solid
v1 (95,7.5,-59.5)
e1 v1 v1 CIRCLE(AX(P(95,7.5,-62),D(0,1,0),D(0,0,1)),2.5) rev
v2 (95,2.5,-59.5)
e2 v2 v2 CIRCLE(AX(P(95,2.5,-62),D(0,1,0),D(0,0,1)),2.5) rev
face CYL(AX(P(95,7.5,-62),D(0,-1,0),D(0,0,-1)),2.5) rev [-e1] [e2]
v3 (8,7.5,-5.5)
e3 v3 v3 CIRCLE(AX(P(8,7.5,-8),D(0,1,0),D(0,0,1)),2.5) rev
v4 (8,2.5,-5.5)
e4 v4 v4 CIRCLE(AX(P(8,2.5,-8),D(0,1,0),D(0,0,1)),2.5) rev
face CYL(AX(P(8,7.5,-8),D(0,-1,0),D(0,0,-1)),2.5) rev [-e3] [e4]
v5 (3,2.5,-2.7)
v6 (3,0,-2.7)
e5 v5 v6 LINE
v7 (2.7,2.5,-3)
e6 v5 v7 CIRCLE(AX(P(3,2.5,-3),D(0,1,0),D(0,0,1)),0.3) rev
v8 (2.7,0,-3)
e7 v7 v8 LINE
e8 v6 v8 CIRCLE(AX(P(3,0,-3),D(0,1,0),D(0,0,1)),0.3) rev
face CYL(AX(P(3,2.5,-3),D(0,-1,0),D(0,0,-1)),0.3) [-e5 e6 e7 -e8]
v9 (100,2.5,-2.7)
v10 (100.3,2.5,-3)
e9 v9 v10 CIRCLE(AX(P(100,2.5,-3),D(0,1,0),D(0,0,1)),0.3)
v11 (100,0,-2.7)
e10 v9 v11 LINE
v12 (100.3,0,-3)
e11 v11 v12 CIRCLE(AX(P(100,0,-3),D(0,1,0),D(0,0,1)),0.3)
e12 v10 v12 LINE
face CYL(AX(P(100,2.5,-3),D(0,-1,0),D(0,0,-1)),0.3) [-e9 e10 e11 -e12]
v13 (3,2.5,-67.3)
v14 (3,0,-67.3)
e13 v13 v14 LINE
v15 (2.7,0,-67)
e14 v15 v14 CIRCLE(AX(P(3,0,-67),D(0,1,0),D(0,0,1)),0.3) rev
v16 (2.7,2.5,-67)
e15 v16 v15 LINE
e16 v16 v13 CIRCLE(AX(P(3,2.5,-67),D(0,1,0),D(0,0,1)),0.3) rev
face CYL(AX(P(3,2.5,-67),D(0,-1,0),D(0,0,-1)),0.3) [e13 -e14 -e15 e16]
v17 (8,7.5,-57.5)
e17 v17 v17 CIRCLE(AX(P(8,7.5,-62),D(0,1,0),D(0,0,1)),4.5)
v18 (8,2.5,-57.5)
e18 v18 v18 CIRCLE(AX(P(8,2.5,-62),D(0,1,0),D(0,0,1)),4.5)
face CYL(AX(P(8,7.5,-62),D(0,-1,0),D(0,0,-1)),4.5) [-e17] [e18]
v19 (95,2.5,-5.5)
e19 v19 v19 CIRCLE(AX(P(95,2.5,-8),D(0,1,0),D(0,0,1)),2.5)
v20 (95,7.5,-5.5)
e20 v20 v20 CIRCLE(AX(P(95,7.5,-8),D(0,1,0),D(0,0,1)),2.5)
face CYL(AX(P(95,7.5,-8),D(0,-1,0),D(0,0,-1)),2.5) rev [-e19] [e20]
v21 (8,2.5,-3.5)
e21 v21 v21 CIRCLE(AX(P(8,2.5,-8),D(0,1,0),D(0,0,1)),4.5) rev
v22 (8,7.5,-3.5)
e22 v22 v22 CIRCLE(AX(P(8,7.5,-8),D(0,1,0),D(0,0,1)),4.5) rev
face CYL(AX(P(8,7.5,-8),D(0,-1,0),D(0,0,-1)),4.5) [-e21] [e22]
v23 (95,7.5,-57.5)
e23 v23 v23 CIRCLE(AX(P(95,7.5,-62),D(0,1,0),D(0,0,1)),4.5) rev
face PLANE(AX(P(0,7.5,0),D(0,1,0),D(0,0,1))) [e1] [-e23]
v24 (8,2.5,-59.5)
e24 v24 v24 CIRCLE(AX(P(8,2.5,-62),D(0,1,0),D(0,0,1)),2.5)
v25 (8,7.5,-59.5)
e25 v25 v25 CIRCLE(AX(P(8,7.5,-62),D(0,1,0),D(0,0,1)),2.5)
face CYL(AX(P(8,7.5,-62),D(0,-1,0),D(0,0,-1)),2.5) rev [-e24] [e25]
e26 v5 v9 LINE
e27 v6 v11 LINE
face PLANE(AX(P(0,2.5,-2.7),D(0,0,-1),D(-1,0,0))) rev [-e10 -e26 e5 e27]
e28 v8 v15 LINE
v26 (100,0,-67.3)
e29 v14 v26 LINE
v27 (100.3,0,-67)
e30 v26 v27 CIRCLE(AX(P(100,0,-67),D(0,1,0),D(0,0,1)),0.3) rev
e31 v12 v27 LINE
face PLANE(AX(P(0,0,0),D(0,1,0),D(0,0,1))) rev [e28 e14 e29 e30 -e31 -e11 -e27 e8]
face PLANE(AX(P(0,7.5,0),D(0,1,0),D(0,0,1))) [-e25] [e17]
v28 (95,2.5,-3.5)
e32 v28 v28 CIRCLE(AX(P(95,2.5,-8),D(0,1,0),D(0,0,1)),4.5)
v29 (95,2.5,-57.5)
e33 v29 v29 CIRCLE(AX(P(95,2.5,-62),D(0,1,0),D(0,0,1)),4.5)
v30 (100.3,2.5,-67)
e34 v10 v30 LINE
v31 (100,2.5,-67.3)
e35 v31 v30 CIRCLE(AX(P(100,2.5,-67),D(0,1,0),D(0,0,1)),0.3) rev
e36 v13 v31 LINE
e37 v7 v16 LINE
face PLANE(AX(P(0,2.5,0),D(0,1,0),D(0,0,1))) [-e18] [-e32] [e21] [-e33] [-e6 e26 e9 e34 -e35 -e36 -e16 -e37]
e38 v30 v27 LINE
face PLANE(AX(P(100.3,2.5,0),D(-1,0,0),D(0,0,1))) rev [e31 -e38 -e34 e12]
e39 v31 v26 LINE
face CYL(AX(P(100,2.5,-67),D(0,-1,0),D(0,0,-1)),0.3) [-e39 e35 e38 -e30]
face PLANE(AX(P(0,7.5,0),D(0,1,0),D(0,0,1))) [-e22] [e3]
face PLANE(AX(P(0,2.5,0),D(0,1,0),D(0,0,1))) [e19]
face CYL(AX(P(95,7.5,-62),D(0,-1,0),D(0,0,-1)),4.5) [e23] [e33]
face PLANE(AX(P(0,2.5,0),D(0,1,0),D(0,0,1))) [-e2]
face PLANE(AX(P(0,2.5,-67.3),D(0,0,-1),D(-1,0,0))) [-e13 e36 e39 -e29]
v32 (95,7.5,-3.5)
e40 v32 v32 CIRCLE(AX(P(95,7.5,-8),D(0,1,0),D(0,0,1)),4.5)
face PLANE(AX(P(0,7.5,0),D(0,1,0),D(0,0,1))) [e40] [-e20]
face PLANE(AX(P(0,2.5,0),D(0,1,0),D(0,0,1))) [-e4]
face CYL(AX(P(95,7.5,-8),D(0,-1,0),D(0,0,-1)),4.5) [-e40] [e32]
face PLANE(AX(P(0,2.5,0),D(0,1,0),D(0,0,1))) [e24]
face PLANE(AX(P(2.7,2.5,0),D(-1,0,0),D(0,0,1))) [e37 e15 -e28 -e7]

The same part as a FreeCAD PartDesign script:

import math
import FreeCAD as App
import Part
import Sketcher

V = App.Vector
Q = App.Units.Quantity

doc = App.newDocument("Part")
body = doc.addObject("PartDesign::Body", "Body")

sketch1 = body.newObject("Sketcher::SketchObject", "Sketch")
sketch1.AttachmentSupport = (doc.getObject("XZ_Plane"), [""])
sketch1.MapMode = "FlatFace"
sketch1.addGeometry(Part.Circle(V(95, -8, 0), V(0, 0, 1), 4.5), False)
sketch1.addGeometry(Part.Circle(V(95, -8, 0), V(0, 0, 1), 2.5), False)
sketch1.addConstraint(Sketcher.Constraint("Coincident", 1, 3, 0, 3))
sketch1.addConstraint(Sketcher.Constraint("Diameter", 0, Q("9 mm")))
sketch1.addConstraint(Sketcher.Constraint("Diameter", 1, Q("5 mm")))
sketch1.addConstraint(Sketcher.Constraint("DistanceX", -1, 1, 0, 3, Q("95 mm")))
sketch1.addConstraint(Sketcher.Constraint("DistanceY", 0, 3, -1, 1, Q("8 mm")))
pad1 = body.newObject("PartDesign::Pad", "Pad")
pad1.Profile = sketch1
pad1.Length = 7.5
pad1.Reversed = True
body2 = doc.addObject("PartDesign::Body", "Body001")

sketch2 = body2.newObject("Sketcher::SketchObject", "Sketch001")
sketch2.AttachmentSupport = (doc.getObject("XZ_Plane001"), [""])
sketch2.MapMode = "FlatFace"
sketch2.addGeometry(Part.Circle(V(95, -62, 0), V(0, 0, 1), 4.5), False)
sketch2.addGeometry(Part.Circle(V(95, -62, 0), V(0, 0, 1), 2.5), False)
sketch2.addConstraint(Sketcher.Constraint("Coincident", 1, 3, 0, 3))
sketch2.addConstraint(Sketcher.Constraint("Diameter", 0, Q("9 mm")))
sketch2.addConstraint(Sketcher.Constraint("Diameter", 1, Q("5 mm")))
sketch2.addConstraint(Sketcher.Constraint("DistanceX", -1, 1, 0, 3, Q("95 mm")))
sketch2.addConstraint(Sketcher.Constraint("DistanceY", 0, 3, -1, 1, Q("62 mm")))
pad2 = body2.newObject("PartDesign::Pad", "Pad001")
pad2.Profile = sketch2
pad2.Length = 7.5
pad2.Reversed = True
body3 = doc.addObject("PartDesign::Body", "Body002")

sketch3 = body3.newObject("Sketcher::SketchObject", "Sketch002")
sketch3.AttachmentSupport = (doc.getObject("XZ_Plane002"), [""])
sketch3.MapMode = "FlatFace"
sketch3.addGeometry(Part.Circle(V(8, -62, 0), V(0, 0, 1), 4.5), False)
sketch3.addGeometry(Part.Circle(V(8, -62, 0), V(0, 0, 1), 2.5), False)
sketch3.addConstraint(Sketcher.Constraint("Coincident", 1, 3, 0, 3))
sketch3.addConstraint(Sketcher.Constraint("Diameter", 0, Q("9 mm")))
sketch3.addConstraint(Sketcher.Constraint("Diameter", 1, Q("5 mm")))
sketch3.addConstraint(Sketcher.Constraint("DistanceX", -1, 1, 0, 3, Q("8 mm")))
sketch3.addConstraint(Sketcher.Constraint("DistanceY", 0, 3, -1, 1, Q("62 mm")))
pad3 = body3.newObject("PartDesign::Pad", "Pad002")
pad3.Profile = sketch3
pad3.Length = 7.5
pad3.Reversed = True
body4 = doc.addObject("PartDesign::Body", "Body003")

sketch4 = body4.newObject("Sketcher::SketchObject", "Sketch003")
sketch4.AttachmentSupport = (doc.getObject("XZ_Plane003"), [""])
sketch4.MapMode = "FlatFace"
sketch4.addGeometry(Part.Circle(V(8, -8, 0), V(0, 0, 1), 4.5), False)
sketch4.addGeometry(Part.Circle(V(8, -8, 0), V(0, 0, 1), 2.5), False)
sketch4.addConstraint(Sketcher.Constraint("Coincident", 1, 3, 0, 3))
sketch4.addConstraint(Sketcher.Constraint("Diameter", 0, Q("9 mm")))
sketch4.addConstraint(Sketcher.Constraint("Diameter", 1, Q("5 mm")))
sketch4.addConstraint(Sketcher.Constraint("DistanceX", -1, 1, 0, 3, Q("8 mm")))
sketch4.addConstraint(Sketcher.Constraint("DistanceY", 0, 3, -1, 1, Q("8 mm")))
pad4 = body4.newObject("PartDesign::Pad", "Pad003")
pad4.Profile = sketch4
pad4.Length = 7.5
pad4.Reversed = True
body.AllowCompound = True
doc.recompute()

boolean = body.newObject("PartDesign::Boolean", "Boolean")
boolean.Type = "Fuse"
boolean.addObjects([body2])
doc.recompute()

boolean2 = body.newObject("PartDesign::Boolean", "Boolean001")
boolean2.Type = "Fuse"
boolean2.addObjects([body3])
doc.recompute()

boolean3 = body.newObject("PartDesign::Boolean", "Boolean002")
boolean3.Type = "Fuse"
boolean3.addObjects([body4])

sketch5 = body.newObject("Sketcher::SketchObject", "Sketch004")
sketch5.AttachmentSupport = (doc.getObject("XZ_Plane"), [""])
sketch5.MapMode = "FlatFace"
sketch5.addGeometry(Part.LineSegment(V(3, -2.7, 0), V(100, -2.7, 0)), False)
sketch5.addGeometry(Part.ArcOfCircle(Part.Circle(V(100, -3, 0), V(0, 0, 1), 0.3), math.radians(0), math.radians(90)), False)
sketch5.addGeometry(Part.LineSegment(V(100.3, -3, 0), V(100.3, -67, 0)), False)
sketch5.addGeometry(Part.ArcOfCircle(Part.Circle(V(100, -67, 0), V(0, 0, 1), 0.3), math.radians(-90), math.radians(0)), False)
sketch5.addGeometry(Part.LineSegment(V(100, -67.3, 0), V(3, -67.3, 0)), False)
sketch5.addGeometry(Part.ArcOfCircle(Part.Circle(V(3, -67, 0), V(0, 0, 1), 0.3), math.radians(-180), math.radians(-90)), False)
sketch5.addGeometry(Part.LineSegment(V(2.7, -67, 0), V(2.7, -3, 0)), False)
sketch5.addGeometry(Part.ArcOfCircle(Part.Circle(V(3, -3, 0), V(0, 0, 1), 0.3), math.radians(90), math.radians(180)), False)
sketch5.addGeometry(Part.Circle(V(8, -8, 0), V(0, 0, 1), 4.5), False)
sketch5.addGeometry(Part.Circle(V(95, -8, 0), V(0, 0, 1), 4.5), False)
sketch5.addGeometry(Part.Circle(V(8, -62, 0), V(0, 0, 1), 4.5), False)
sketch5.addGeometry(Part.Circle(V(95, -62, 0), V(0, 0, 1), 4.5), False)
sketch5.addGeometry(Part.Circle(V(8, -8, 0), V(0, 0, 1), 2.5), False)
sketch5.addGeometry(Part.Circle(V(8, -62, 0), V(0, 0, 1), 2.5), False)
sketch5.addGeometry(Part.Circle(V(95, -8, 0), V(0, 0, 1), 2.5), False)
sketch5.addGeometry(Part.Circle(V(95, -62, 0), V(0, 0, 1), 2.5), False)
sketch5.addConstraint(Sketcher.Constraint("Tangent", 0, 2, 1, 2))
sketch5.addConstraint(Sketcher.Constraint("Tangent", 1, 1, 2, 1))
sketch5.addConstraint(Sketcher.Constraint("Tangent", 2, 2, 3, 2))
sketch5.addConstraint(Sketcher.Constraint("Tangent", 3, 1, 4, 1))
sketch5.addConstraint(Sketcher.Constraint("Tangent", 4, 2, 5, 2))
sketch5.addConstraint(Sketcher.Constraint("Tangent", 5, 1, 6, 1))
sketch5.addConstraint(Sketcher.Constraint("Tangent", 6, 2, 7, 2))
sketch5.addConstraint(Sketcher.Constraint("Tangent", 7, 1, 0, 1))
sketch5.addConstraint(Sketcher.Constraint("Horizontal", 0))
sketch5.addConstraint(Sketcher.Constraint("Vertical", 2))
sketch5.addConstraint(Sketcher.Constraint("Horizontal", 4))
sketch5.addConstraint(Sketcher.Constraint("Vertical", 6))
sketch5.addConstraint(Sketcher.Constraint("Coincident", 12, 3, 8, 3))
sketch5.addConstraint(Sketcher.Constraint("Coincident", 13, 3, 10, 3))
sketch5.addConstraint(Sketcher.Constraint("Coincident", 14, 3, 9, 3))
sketch5.addConstraint(Sketcher.Constraint("Coincident", 15, 3, 11, 3))
sketch5.addConstraint(Sketcher.Constraint("Equal", 1, 3))
sketch5.addConstraint(Sketcher.Constraint("Equal", 3, 5))
sketch5.addConstraint(Sketcher.Constraint("Equal", 5, 7))
sketch5.addConstraint(Sketcher.Constraint("Equal", 8, 9))
sketch5.addConstraint(Sketcher.Constraint("Equal", 9, 10))
sketch5.addConstraint(Sketcher.Constraint("Equal", 10, 11))
sketch5.addConstraint(Sketcher.Constraint("Equal", 12, 13))
sketch5.addConstraint(Sketcher.Constraint("Equal", 13, 14))
sketch5.addConstraint(Sketcher.Constraint("Equal", 14, 15))
sketch5.addConstraint(Sketcher.Constraint("Horizontal", 8, 3, 9, 3))
sketch5.addConstraint(Sketcher.Constraint("Horizontal", 10, 3, 11, 3))
sketch5.addConstraint(Sketcher.Constraint("Vertical", 8, 3, 10, 3))
sketch5.addConstraint(Sketcher.Constraint("Vertical", 9, 3, 11, 3))
sketch5.addConstraint(Sketcher.Constraint("Diameter", 8, Q("9 mm")))
sketch5.addConstraint(Sketcher.Constraint("Diameter", 12, Q("5 mm")))
sketch5.addConstraint(Sketcher.Constraint("Radius", 1, Q("0.3 mm")))
sketch5.addConstraint(Sketcher.Constraint("DistanceX", 0, 1, 0, 2, Q("97 mm")))
sketch5.addConstraint(Sketcher.Constraint("DistanceY", 2, 2, 2, 1, Q("64 mm")))
sketch5.addConstraint(Sketcher.Constraint("DistanceX", -1, 1, 1, 3, Q("100 mm")))
sketch5.addConstraint(Sketcher.Constraint("DistanceY", 1, 3, -1, 1, Q("3 mm")))
sketch5.addConstraint(Sketcher.Constraint("DistanceX", -1, 1, 8, 3, Q("8 mm")))
sketch5.addConstraint(Sketcher.Constraint("DistanceY", 8, 3, -1, 1, Q("8 mm")))
sketch5.addConstraint(Sketcher.Constraint("DistanceX", -1, 1, 9, 3, Q("95 mm")))
sketch5.addConstraint(Sketcher.Constraint("DistanceY", 10, 3, -1, 1, Q("62 mm")))
pad5 = body.newObject("PartDesign::Pad", "Pad004")
pad5.Profile = sketch5
pad5.Length = 2.5
pad5.Reversed = True

doc.recompute()
